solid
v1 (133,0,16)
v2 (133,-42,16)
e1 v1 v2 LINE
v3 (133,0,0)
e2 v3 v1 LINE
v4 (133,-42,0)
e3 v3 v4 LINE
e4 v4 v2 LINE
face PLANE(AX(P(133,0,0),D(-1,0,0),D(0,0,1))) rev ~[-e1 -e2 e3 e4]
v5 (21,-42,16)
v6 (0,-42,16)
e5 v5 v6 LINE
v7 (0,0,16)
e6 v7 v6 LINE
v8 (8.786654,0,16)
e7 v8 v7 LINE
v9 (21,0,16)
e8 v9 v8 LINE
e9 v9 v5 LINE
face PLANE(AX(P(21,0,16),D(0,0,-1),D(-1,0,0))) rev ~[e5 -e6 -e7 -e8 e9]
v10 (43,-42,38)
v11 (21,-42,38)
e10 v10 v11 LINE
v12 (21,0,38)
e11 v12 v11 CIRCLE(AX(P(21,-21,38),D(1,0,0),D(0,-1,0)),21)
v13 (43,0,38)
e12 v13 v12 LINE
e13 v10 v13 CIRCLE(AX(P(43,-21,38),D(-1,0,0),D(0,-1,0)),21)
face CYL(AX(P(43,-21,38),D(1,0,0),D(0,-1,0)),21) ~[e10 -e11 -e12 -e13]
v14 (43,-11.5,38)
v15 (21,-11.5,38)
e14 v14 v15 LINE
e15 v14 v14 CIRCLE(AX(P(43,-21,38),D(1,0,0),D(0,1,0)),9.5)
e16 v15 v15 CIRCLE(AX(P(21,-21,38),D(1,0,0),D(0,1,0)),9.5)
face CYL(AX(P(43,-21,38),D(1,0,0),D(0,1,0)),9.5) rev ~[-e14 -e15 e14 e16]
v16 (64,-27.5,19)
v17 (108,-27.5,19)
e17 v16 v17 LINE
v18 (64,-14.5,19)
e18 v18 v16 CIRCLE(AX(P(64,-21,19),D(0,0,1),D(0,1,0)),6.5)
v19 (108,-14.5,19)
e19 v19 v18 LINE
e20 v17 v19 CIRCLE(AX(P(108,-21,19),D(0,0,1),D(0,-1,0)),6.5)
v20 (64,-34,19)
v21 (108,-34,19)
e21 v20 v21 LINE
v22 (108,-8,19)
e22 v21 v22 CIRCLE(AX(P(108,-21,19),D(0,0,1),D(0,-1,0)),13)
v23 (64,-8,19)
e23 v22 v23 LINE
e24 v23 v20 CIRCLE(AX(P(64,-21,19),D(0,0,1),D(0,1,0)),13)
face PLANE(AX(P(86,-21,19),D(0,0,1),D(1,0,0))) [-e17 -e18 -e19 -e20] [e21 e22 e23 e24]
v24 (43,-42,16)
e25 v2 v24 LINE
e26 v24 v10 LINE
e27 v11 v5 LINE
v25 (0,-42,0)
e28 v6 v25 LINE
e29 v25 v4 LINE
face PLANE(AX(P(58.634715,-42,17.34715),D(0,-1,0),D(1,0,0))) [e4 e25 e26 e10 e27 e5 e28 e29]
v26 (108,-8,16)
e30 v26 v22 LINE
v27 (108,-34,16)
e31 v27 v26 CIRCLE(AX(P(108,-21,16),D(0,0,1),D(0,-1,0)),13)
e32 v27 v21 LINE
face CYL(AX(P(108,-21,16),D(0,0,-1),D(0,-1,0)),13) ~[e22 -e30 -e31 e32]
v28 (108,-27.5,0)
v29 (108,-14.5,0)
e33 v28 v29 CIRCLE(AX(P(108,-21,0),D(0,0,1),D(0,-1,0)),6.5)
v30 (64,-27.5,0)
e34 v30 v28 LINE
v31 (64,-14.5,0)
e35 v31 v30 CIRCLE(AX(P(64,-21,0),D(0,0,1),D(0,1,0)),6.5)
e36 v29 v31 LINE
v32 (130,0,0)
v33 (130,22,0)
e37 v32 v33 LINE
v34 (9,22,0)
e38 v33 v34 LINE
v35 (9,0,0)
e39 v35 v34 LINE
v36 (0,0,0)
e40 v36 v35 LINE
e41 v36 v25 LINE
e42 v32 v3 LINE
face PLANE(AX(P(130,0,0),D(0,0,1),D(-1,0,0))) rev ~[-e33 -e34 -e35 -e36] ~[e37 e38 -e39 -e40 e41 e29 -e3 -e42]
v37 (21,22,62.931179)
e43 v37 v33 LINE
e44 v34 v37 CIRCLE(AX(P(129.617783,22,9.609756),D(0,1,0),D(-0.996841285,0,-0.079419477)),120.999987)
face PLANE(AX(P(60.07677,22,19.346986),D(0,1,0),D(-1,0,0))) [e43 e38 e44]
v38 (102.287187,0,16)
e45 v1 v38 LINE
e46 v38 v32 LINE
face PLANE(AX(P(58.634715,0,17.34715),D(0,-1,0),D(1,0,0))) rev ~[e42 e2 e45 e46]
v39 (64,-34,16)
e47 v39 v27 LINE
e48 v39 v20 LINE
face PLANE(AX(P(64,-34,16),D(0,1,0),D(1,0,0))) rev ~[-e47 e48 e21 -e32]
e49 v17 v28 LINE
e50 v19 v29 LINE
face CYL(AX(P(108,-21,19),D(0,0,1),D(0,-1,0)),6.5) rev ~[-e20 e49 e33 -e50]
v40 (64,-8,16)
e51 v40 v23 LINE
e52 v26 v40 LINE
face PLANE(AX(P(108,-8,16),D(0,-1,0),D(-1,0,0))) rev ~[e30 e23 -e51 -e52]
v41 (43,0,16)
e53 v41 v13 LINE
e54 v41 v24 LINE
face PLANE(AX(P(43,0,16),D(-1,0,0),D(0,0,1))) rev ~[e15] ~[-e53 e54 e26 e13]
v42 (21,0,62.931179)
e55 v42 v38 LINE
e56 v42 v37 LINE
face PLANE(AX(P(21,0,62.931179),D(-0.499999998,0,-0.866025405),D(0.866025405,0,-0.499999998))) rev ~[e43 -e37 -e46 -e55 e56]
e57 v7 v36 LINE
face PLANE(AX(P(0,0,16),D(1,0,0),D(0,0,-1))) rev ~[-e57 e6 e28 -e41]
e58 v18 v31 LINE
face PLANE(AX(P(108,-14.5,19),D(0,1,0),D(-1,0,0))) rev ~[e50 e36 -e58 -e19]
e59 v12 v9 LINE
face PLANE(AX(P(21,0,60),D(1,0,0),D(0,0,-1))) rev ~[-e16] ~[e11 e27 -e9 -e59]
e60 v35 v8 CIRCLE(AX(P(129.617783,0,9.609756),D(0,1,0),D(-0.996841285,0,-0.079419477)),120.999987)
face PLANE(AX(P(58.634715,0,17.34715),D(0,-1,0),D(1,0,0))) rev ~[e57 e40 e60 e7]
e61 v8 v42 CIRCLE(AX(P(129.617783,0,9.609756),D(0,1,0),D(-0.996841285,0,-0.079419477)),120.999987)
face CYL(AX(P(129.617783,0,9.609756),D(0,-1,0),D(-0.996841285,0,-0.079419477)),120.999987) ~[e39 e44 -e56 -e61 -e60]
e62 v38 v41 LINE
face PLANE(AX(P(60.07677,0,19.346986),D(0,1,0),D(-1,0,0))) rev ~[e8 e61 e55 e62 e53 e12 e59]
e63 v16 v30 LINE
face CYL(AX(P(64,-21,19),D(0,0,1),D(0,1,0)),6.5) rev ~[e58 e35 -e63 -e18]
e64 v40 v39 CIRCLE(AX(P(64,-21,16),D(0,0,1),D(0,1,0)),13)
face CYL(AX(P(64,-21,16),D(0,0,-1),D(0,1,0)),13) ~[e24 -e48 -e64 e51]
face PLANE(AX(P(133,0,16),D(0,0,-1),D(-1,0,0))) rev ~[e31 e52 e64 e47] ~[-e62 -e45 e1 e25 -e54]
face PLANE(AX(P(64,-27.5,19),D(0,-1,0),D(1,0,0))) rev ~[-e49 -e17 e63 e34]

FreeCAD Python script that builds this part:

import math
import FreeCAD as App
import Part
import Sketcher

V = App.Vector
Q = App.Units.Quantity


def add_polygon(sketch, points):
    """Adds a closed chain of lines whose ends are joined by coincident constraints."""
    first, n = sketch.GeometryCount, len(points)
    for a, b in zip(points, points[1:] + points[:1]):
        sketch.addGeometry(Part.LineSegment(App.Vector(*a, 0), App.Vector(*b, 0)), False)
    for i in range(n):
        sketch.addConstraint(Sketcher.Constraint("Coincident", first + i, 2, first + (i + 1) % n, 1))

doc = App.newDocument("Part")
body = doc.addObject("PartDesign::Body", "Body")

# Sketch on XZ plane
sketch1 = body.newObject("Sketcher::SketchObject", "Sketch")
sketch1.AttachmentSupport = (doc.getObject("XZ_Plane"), [""])
sketch1.MapMode = "FlatFace"
add_polygon(sketch1, [(0, 16), (0, 0), (133, 0), (133, 16), (43, 16), (43, 60), (21, 60), (21, 16)])  # lines 0-7
sketch1.addConstraint(Sketcher.Constraint("Vertical", 0))
sketch1.addConstraint(Sketcher.Constraint("Horizontal", 1))
sketch1.addConstraint(Sketcher.Constraint("Vertical", 2))
sketch1.addConstraint(Sketcher.Constraint("Horizontal", 3))
sketch1.addConstraint(Sketcher.Constraint("Vertical", 4))
sketch1.addConstraint(Sketcher.Constraint("Horizontal", 5))
sketch1.addConstraint(Sketcher.Constraint("Vertical", 6))
sketch1.addConstraint(Sketcher.Constraint("Horizontal", 7))
sketch1.addConstraint(Sketcher.Constraint("Coincident", 0, 2, -1, 1))
sketch1.addConstraint(Sketcher.Constraint("Horizontal", 3, 2, 6, 2))
sketch1.addConstraint(Sketcher.Constraint("DistanceX", 1, 1, 1, 2, 133.0))
sketch1.addConstraint(Sketcher.Constraint("DistanceX", 3, 2, 3, 1, 90.0))
sketch1.addConstraint(Sketcher.Constraint("DistanceX", 5, 2, 5, 1, 22.0))
sketch1.addConstraint(Sketcher.Constraint("DistanceY", 0, 2, 0, 1, 16.0))
sketch1.addConstraint(Sketcher.Constraint("DistanceY", 4, 1, 4, 2, 44.0))
pad1 = body.newObject("PartDesign::Pad", "Pad")
pad1.Profile = sketch1
pad1.Length = 42

# Sketch on YZ plane
sketch2 = body.newObject("Sketcher::SketchObject", "Sketch001")
sketch2.AttachmentSupport = (doc.getObject("YZ_Plane"), [""])
sketch2.MapMode = "FlatFace"
sketch2.AttachmentOffset = App.Placement(V(0, 0, 43), App.Rotation())
sketch2.addGeometry(Part.Circle(V(-21, 38, 0), V(0, 0, 1), 10), False)
sketch2.addConstraint(Sketcher.Constraint("Diameter", 0, 19.0))
sketch2.addConstraint(Sketcher.Constraint("DistanceX", 0, 3, -1, 1, 21.0))
sketch2.addConstraint(Sketcher.Constraint("DistanceY", -1, 1, 0, 3, 38.0))
pocket1 = body.newObject("PartDesign::Pocket", "Pocket")
pocket1.Profile = sketch2
pocket1.Type = "ThroughAll"

# Sketch on YZ plane
sketch3 = body.newObject("Sketcher::SketchObject", "Sketch002")
sketch3.AttachmentSupport = (doc.getObject("YZ_Plane"), [""])
sketch3.MapMode = "FlatFace"
sketch3.AttachmentOffset = App.Placement(V(0, 0, 43), App.Rotation())
sketch3.addGeometry(Part.LineSegment(V(-42, 60, 0), V(-42, 38, 0)), False)
sketch3.addGeometry(Part.ArcOfCircle(Part.Circle(V(-21, 38, 0), V(0, 0, 1), 21), math.radians(0), math.radians(180)), False)
sketch3.addGeometry(Part.LineSegment(V(0, 38, 0), V(0, 60, 0)), False)
sketch3.addGeometry(Part.LineSegment(V(0, 60, 0), V(-42, 60, 0)), False)
sketch3.addConstraint(Sketcher.Constraint("Tangent", 0, 2, 1, 2))
sketch3.addConstraint(Sketcher.Constraint("Tangent", 1, 1, 2, 1))
sketch3.addConstraint(Sketcher.Constraint("Coincident", 2, 2, 3, 1))
sketch3.addConstraint(Sketcher.Constraint("Coincident", 3, 2, 0, 1))
sketch3.addConstraint(Sketcher.Constraint("Vertical", 0))
sketch3.addConstraint(Sketcher.Constraint("Vertical", 2))
sketch3.addConstraint(Sketcher.Constraint("Horizontal", 3))
sketch3.addConstraint(Sketcher.Constraint("PointOnObject", 1, 1, -2))
sketch3.addConstraint(Sketcher.Constraint("Radius", 1, 21.0))
sketch3.addConstraint(Sketcher.Constraint("DistanceY", 0, 2, 0, 1, 22.0))
sketch3.addConstraint(Sketcher.Constraint("DistanceY", -1, 1, 1, 3, 38.0))
pocket2 = body.newObject("PartDesign::Pocket", "Pocket001")
pocket2.Profile = sketch3
pocket2.Type = "ThroughAll"

# Sketch on XY plane
sketch4 = body.newObject("Sketcher::SketchObject", "Sketch003")
sketch4.AttachmentSupport = (doc.getObject("XY_Plane"), [""])
sketch4.MapMode = "FlatFace"
sketch4.AttachmentOffset = App.Placement(V(0, 0, 16), App.Rotation())
sketch4.addGeometry(Part.LineSegment(V(108, -8, 0), V(64, -8, 0)), False)
sketch4.addGeometry(Part.ArcOfCircle(Part.Circle(V(64, -21, 0), V(0, 0, 1), 13), math.radians(90), math.radians(270)), False)
sketch4.addGeometry(Part.LineSegment(V(64, -34, 0), V(108, -34, 0)), False)
sketch4.addGeometry(Part.ArcOfCircle(Part.Circle(V(108, -21, 0), V(0, 0, 1), 13), math.radians(-90), math.radians(90)), False)
sketch4.addConstraint(Sketcher.Constraint("Tangent", 0, 2, 1, 1))
sketch4.addConstraint(Sketcher.Constraint("Tangent", 1, 2, 2, 1))
sketch4.addConstraint(Sketcher.Constraint("Tangent", 2, 2, 3, 1))
sketch4.addConstraint(Sketcher.Constraint("Tangent", 3, 2, 0, 1))
sketch4.addConstraint(Sketcher.Constraint("Horizontal", 0))
sketch4.addConstraint(Sketcher.Constraint("Horizontal", 2))
sketch4.addConstraint(Sketcher.Constraint("Radius", 1, 13.0))
sketch4.addConstraint(Sketcher.Constraint("DistanceX", 0, 2, 0, 1, 44.0))
sketch4.addConstraint(Sketcher.Constraint("DistanceX", -1, 1, 1, 3, 64.0))
sketch4.addConstraint(Sketcher.Constraint("DistanceY", 1, 3, -1, 1, 21.0))
pad2 = body.newObject("PartDesign::Pad", "Pad001")
pad2.Profile = sketch4
pad2.Length = 3

# Sketch on XY plane
sketch5 = body.newObject("Sketcher::SketchObject", "Sketch004")
sketch5.AttachmentSupport = (doc.getObject("XY_Plane"), [""])
sketch5.MapMode = "FlatFace"
sketch5.AttachmentOffset = App.Placement(V(0, 0, 19), App.Rotation())
sketch5.addGeometry(Part.LineSegment(V(108, -14, 0), V(64, -14, 0)), False)
sketch5.addGeometry(Part.ArcOfCircle(Part.Circle(V(64, -21, 0), V(0, 0, 1), 6), math.radians(90), math.radians(270)), False)
sketch5.addGeometry(Part.LineSegment(V(64, -28, 0), V(108, -28, 0)), False)
sketch5.addGeometry(Part.ArcOfCircle(Part.Circle(V(108, -21, 0), V(0, 0, 1), 6), math.radians(-90), math.radians(90)), False)
sketch5.addConstraint(Sketcher.Constraint("Tangent", 0, 2, 1, 1))
sketch5.addConstraint(Sketcher.Constraint("Tangent", 1, 2, 2, 1))
sketch5.addConstraint(Sketcher.Constraint("Tangent", 2, 2, 3, 1))
sketch5.addConstraint(Sketcher.Constraint("Tangent", 3, 2, 0, 1))
sketch5.addConstraint(Sketcher.Constraint("Horizontal", 0))
sketch5.addConstraint(Sketcher.Constraint("Horizontal", 2))
sketch5.addConstraint(Sketcher.Constraint("Radius", 1, 6.5))
sketch5.addConstraint(Sketcher.Constraint("DistanceX", 0, 2, 0, 1, 44.0))
sketch5.addConstraint(Sketcher.Constraint("DistanceX", -1, 1, 1, 3, 64.0))
sketch5.addConstraint(Sketcher.Constraint("DistanceY", 1, 3, -1, 1, 21.0))
pocket3 = body.newObject("PartDesign::Pocket", "Pocket002")
pocket3.Profile = sketch5
pocket3.Type = "ThroughAll"

# Sketch on XZ plane
sketch6 = body.newObject("Sketcher::SketchObject", "Sketch005")
sketch6.AttachmentSupport = (doc.getObject("XZ_Plane"), [""])
sketch6.MapMode = "FlatFace"
sketch6.addGeometry(Part.LineSegment(V(21, 63, 0), V(130, 0, 0)), False)
sketch6.addGeometry(Part.LineSegment(V(130, 0, 0), V(9, 0, 0)), False)
sketch6.addGeometry(Part.ArcOfCircle(Part.Circle(V(130, 10, 0), V(0, 0, 1), 121), math.radians(154), math.radians(185)), False)
sketch6.addConstraint(Sketcher.Constraint("Coincident", 0, 2, 1, 1))
sketch6.addConstraint(Sketcher.Constraint("Coincident", 1, 2, 2, 2))
sketch6.addConstraint(Sketcher.Constraint("Coincident", 2, 1, 0, 1))
sketch6.addConstraint(Sketcher.Constraint("Horizontal", 1))
sketch6.addConstraint(Sketcher.Constraint("PointOnObject", 0, 2, -1))
sketch6.addConstraint(Sketcher.Constraint("DistanceX", 1, 2, 1, 1, 121.0))
sketch6.addConstraint(Sketcher.Constraint("Angle", 0, Q("-30 deg")))
sketch6.addConstraint(Sketcher.Constraint("DistanceX", -1, 1, 0, 2, 130.0))
sketch6.addConstraint(Sketcher.Constraint("DistanceX", -1, 1, 2, 1, 21.0))
sketch6.addConstraint(Sketcher.Constraint("Radius", 2, 120.999987))
pad3 = body.newObject("PartDesign::Pad", "Pad002")
pad3.Profile = sketch6
pad3.Length = 22
pad3.Reversed = True

doc.recompute()
